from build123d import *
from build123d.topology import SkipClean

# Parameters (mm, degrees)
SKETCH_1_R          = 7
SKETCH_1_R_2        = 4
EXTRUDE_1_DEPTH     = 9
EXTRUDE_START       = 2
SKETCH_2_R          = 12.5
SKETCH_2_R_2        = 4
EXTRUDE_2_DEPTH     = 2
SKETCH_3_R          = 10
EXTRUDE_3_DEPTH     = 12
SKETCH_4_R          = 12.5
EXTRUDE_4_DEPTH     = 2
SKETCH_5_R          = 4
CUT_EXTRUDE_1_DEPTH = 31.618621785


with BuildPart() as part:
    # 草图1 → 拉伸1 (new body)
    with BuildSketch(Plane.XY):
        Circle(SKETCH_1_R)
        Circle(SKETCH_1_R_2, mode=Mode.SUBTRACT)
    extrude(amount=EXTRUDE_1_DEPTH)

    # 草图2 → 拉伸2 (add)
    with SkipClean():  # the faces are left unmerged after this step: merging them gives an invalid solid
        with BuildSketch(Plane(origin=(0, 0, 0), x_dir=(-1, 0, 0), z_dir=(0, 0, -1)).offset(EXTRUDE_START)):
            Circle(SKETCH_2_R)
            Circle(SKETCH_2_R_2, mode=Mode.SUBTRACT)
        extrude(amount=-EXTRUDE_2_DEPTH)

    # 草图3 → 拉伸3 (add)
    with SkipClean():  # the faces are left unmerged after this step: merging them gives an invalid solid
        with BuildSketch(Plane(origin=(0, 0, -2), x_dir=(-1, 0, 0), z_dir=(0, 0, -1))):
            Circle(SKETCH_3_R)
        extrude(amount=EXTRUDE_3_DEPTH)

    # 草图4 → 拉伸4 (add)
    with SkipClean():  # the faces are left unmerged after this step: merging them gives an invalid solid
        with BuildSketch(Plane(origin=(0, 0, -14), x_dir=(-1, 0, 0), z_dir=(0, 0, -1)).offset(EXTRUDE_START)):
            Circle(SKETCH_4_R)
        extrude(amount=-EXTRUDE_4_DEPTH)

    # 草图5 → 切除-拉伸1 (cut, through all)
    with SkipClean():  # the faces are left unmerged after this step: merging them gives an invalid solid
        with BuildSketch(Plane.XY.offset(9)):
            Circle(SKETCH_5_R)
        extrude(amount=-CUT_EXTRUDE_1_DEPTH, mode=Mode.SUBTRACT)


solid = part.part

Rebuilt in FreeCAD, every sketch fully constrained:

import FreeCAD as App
import Part
import Sketcher

V = App.Vector
Q = App.Units.Quantity

doc = App.newDocument("Part")
body = doc.addObject("PartDesign::Body", "Body")

# Sketch on XY plane
sketch1 = doc.addObject("Sketcher::SketchObject", "Sketch")
body.addObject(sketch1)
sketch1.AttachmentSupport = (doc.XY_Plane, [""])
sketch1.MapMode = "FlatFace"
sketch1.addGeometry([
    Part.Circle(V(0, 0, 0), V(0, 0, 1), 7),
    Part.Circle(V(0, 0, 0), V(0, 0, 1), 4),
], False)
sketch1.addConstraint([
    Sketcher.Constraint("Coincident", 0, 3, -1, 1),
    Sketcher.Constraint("Coincident", 1, 3, -1, 1),
    Sketcher.Constraint("Diameter", 0, Q("14 mm")),
    Sketcher.Constraint("Diameter", 1, Q("8 mm")),
])
pad1 = doc.addObject("PartDesign::Pad", "Pad")
body.addObject(pad1)
pad1.Profile = sketch1
pad1.Length = 9

# Sketch on XY plane
sketch2 = doc.addObject("Sketcher::SketchObject", "Sketch001")
body.addObject(sketch2)
sketch2.AttachmentSupport = (doc.XY_Plane, [""])
sketch2.MapMode = "FlatFace"
sketch2.AttachmentOffset = App.Placement(V(0, 0, -2), App.Rotation())
sketch2.addGeometry([
    Part.Circle(V(0, 0, 0), V(0, 0, 1), 12.5),
    Part.Circle(V(0, 0, 0), V(0, 0, 1), 4),
], False)
sketch2.addConstraint([
    Sketcher.Constraint("Coincident", 0, 3, -1, 1),
    Sketcher.Constraint("Coincident", 1, 3, -1, 1),
    Sketcher.Constraint("Diameter", 0, Q("25 mm")),
    Sketcher.Constraint("Diameter", 1, Q("8 mm")),
])
pad2 = doc.addObject("PartDesign::Pad", "Pad001")
body.addObject(pad2)
pad2.Profile = sketch2
pad2.Length = 2

# Sketch on XY plane
sketch3 = doc.addObject("Sketcher::SketchObject", "Sketch002")
body.addObject(sketch3)
sketch3.AttachmentSupport = (doc.XY_Plane, [""])
sketch3.MapMode = "FlatFace"
sketch3.AttachmentOffset = App.Placement(V(0, 0, -2), App.Rotation())
sketch3.addGeometry(Part.Circle(V(0, 0, 0), V(0, 0, 1), 10), False)
sketch3.addConstraint([
    Sketcher.Constraint("Coincident", 0, 3, -1, 1),
    Sketcher.Constraint("Diameter", 0, Q("20 mm")),
])
pad3 = doc.addObject("PartDesign::Pad", "Pad002")
body.addObject(pad3)
pad3.Profile = sketch3
pad3.Length = 12
pad3.Reversed = True

# Sketch on XY plane
sketch4 = doc.addObject("Sketcher::SketchObject", "Sketch003")
body.addObject(sketch4)
sketch4.AttachmentSupport = (doc.XY_Plane, [""])
sketch4.MapMode = "FlatFace"
sketch4.AttachmentOffset = App.Placement(V(0, 0, -16), App.Rotation())
sketch4.addGeometry(Part.Circle(V(0, 0, 0), V(0, 0, 1), 12), False)
sketch4.addConstraint([
    Sketcher.Constraint("Coincident", 0, 3, -1, 1),
    Sketcher.Constraint("Diameter", 0, Q("25 mm")),
])
pad4 = doc.addObject("PartDesign::Pad", "Pad003")
body.addObject(pad4)
pad4.Profile = sketch4
pad4.Length = 2

# Sketch on XY plane
sketch5 = doc.addObject("Sketcher::SketchObject", "Sketch004")
body.addObject(sketch5)
sketch5.AttachmentSupport = (doc.XY_Plane, [""])
sketch5.MapMode = "FlatFace"
sketch5.AttachmentOffset = App.Placement(V(0, 0, 9), App.Rotation())
sketch5.addGeometry(Part.Circle(V(0, 0, 0), V(0, 0, 1), 4), False)
sketch5.addConstraint([
    Sketcher.Constraint("Coincident", 0, 3, -1, 1),
    Sketcher.Constraint("Diameter", 0, Q("8 mm")),
])
pocket1 = doc.addObject("PartDesign::Pocket", "Pocket")
body.addObject(pocket1)
pocket1.Profile = sketch5
pocket1.Type = "ThroughAll"

doc.recompute()
